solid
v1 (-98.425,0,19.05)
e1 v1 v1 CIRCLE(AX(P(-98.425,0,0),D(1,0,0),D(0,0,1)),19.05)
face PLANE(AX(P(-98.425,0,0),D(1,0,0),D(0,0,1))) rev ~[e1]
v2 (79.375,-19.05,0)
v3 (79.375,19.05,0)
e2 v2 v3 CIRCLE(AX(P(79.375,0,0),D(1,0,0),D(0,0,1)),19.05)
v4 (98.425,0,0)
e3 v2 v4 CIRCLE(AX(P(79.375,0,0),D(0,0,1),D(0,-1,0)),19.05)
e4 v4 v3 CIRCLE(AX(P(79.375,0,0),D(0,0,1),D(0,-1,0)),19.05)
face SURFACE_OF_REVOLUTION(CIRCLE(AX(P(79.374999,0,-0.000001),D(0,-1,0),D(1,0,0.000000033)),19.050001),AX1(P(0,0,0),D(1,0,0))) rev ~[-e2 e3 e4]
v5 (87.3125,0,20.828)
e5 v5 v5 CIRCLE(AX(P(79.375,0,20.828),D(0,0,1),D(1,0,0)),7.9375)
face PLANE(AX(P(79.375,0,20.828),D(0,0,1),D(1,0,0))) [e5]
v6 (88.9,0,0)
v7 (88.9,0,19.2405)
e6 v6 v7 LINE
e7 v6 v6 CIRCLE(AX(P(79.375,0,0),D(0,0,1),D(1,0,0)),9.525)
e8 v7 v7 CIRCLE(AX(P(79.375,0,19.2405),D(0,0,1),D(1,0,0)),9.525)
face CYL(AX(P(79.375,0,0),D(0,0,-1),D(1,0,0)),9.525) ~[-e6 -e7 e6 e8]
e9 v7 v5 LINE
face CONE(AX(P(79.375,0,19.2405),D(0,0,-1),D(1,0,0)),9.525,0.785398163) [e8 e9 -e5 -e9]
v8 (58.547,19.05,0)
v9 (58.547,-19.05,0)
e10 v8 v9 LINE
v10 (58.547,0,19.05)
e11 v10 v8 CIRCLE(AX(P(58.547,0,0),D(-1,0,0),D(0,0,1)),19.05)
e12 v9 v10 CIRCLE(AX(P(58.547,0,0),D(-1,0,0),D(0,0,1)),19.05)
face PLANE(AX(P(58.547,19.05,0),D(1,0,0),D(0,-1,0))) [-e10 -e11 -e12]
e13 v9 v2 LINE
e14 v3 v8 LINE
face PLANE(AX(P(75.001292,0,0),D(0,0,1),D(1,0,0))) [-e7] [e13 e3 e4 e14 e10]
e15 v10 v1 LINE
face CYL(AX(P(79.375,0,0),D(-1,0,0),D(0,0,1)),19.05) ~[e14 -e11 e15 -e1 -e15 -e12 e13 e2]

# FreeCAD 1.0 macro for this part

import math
import FreeCAD as App
import Part
import Sketcher
from FreeCAD import Vector
Q = App.Units.Quantity


def edges_at(feature, points):
    """Names of the edges that pass closest to the given points."""
    edges = feature.Shape.Edges
    near = lambda p: min(range(len(edges)), key=lambda i: edges[i].distToShape(Part.Vertex(*p))[0])
    return sorted({f"Edge{near(p) + 1}" for p in points})

doc = App.newDocument("Part")
body = doc.addObject("PartDesign::Body", "Body")

# Sketch on XZ plane
sketch1 = body.newObject("Sketcher::SketchObject", "Sketch")
sketch1.AttachmentSupport = (doc.getObject("XZ_Plane"), [""])
sketch1.MapMode = "FlatFace"
sketch1.addGeometry(Part.LineSegment(Vector(-98.425, 19.05, 0), Vector(-98.425, 0, 0)), False)
sketch1.addGeometry(Part.LineSegment(Vector(-98.425, 0, 0), Vector(98.425, 0, 0)), False)
sketch1.addGeometry(Part.ArcOfCircle(Part.Circle(Vector(79.374999, -0.000001, 0), Vector(0, 0, 1), 19.050001), math.radians(0.000002), math.radians(89.999998)), False)
sketch1.addGeometry(Part.LineSegment(Vector(79.375, 19.05, 0), Vector(-98.425, 19.05, 0)), False)
sketch1.addConstraint(Sketcher.Constraint("Coincident", 0, 2, 1, 1))
sketch1.addConstraint(Sketcher.Constraint("Coincident", 1, 2, 2, 1))
sketch1.addConstraint(Sketcher.Constraint("Tangent", 2, 2, 3, 1))
sketch1.addConstraint(Sketcher.Constraint("Coincident", 3, 2, 0, 1))
sketch1.addConstraint(Sketcher.Constraint("Vertical", 0))
sketch1.addConstraint(Sketcher.Constraint("Horizontal", 1))
sketch1.addConstraint(Sketcher.Constraint("Horizontal", 3))
sketch1.addConstraint(Sketcher.Constraint("Symmetric", 0, 2, 1, 2, -1, 1))
sketch1.addConstraint(Sketcher.Constraint("PointOnObject", 2, 3, -1))
sketch1.addConstraint(Sketcher.Constraint("DistanceX", 3, 2, 3, 1, Q("7 in")))
sketch1.addConstraint(Sketcher.Constraint("Radius", 2, Q("0.75 in")))
revolution = body.newObject("PartDesign::Revolution", "Revolution")
revolution.Profile = sketch1
revolution.ReferenceAxis = (sketch1, ["H_Axis"])
revolution.Angle = 360

# Sketch on XY plane
sketch2 = body.newObject("Sketcher::SketchObject", "Sketch001")
sketch2.AttachmentSupport = (doc.getObject("XY_Plane"), [""])
sketch2.MapMode = "FlatFace"
sketch2.addGeometry(Part.LineSegment(Vector(79.375, 19.05, 0), Vector(58.547, 19.05, 0)), False)
sketch2.addGeometry(Part.LineSegment(Vector(58.547, 19.05, 0), Vector(58.547, -19.05, 0)), False)
sketch2.addGeometry(Part.LineSegment(Vector(58.547, -19.05, 0), Vector(79.375, -19.05, 0)), False)
sketch2.addGeometry(Part.ArcOfCircle(Part.Circle(Vector(79.375, 0, 0), Vector(0, 0, 1), 19.05), math.radians(-90), math.radians(90)), False)
sketch2.addConstraint(Sketcher.Constraint("Coincident", 0, 2, 1, 1))
sketch2.addConstraint(Sketcher.Constraint("Coincident", 1, 2, 2, 1))
sketch2.addConstraint(Sketcher.Constraint("Tangent", 2, 2, 3, 1))
sketch2.addConstraint(Sketcher.Constraint("Tangent", 3, 2, 0, 1))
sketch2.addConstraint(Sketcher.Constraint("Horizontal", 0))
sketch2.addConstraint(Sketcher.Constraint("Vertical", 1))
sketch2.addConstraint(Sketcher.Constraint("Horizontal", 2))
sketch2.addConstraint(Sketcher.Constraint("PointOnObject", 3, 3, -1))
sketch2.addConstraint(Sketcher.Constraint("Radius", 3, Q("0.75 in")))
sketch2.addConstraint(Sketcher.Constraint("DistanceX", 0, 2, 0, 1, Q("0.82 in")))
sketch2.addConstraint(Sketcher.Constraint("DistanceX", -1, 1, 3, 3, Q("3.125 in")))
pocket1 = body.newObject("PartDesign::Pocket", "Pocket")
pocket1.Profile = sketch2
pocket1.Length = Q("1 in")
pocket1.Reversed = True

# Sketch on XY plane
sketch3 = body.newObject("Sketcher::SketchObject", "Sketch002")
sketch3.AttachmentSupport = (doc.getObject("XY_Plane"), [""])
sketch3.MapMode = "FlatFace"
sketch3.addGeometry(Part.Circle(Vector(79.375, 0, 0), Vector(0, 0, 1), 9.525), False)
sketch3.addConstraint(Sketcher.Constraint("PointOnObject", 0, 3, -1))
sketch3.addConstraint(Sketcher.Constraint("Diameter", 0, Q("0.75 in")))
sketch3.addConstraint(Sketcher.Constraint("DistanceX", -1, 1, 0, 3, Q("3.125 in")))
pad1 = body.newObject("PartDesign::Pad", "Pad")
pad1.Profile = sketch3
pad1.Length = Q("0.82 in")
doc.recompute()

chamfer = body.newObject("PartDesign::Chamfer", "Chamfer")
chamfer.Base = (pad1, edges_at(pad1, [(69.85, 0, 20.828)]))
chamfer.Size = Q("0.0625 in")

doc.recompute()
